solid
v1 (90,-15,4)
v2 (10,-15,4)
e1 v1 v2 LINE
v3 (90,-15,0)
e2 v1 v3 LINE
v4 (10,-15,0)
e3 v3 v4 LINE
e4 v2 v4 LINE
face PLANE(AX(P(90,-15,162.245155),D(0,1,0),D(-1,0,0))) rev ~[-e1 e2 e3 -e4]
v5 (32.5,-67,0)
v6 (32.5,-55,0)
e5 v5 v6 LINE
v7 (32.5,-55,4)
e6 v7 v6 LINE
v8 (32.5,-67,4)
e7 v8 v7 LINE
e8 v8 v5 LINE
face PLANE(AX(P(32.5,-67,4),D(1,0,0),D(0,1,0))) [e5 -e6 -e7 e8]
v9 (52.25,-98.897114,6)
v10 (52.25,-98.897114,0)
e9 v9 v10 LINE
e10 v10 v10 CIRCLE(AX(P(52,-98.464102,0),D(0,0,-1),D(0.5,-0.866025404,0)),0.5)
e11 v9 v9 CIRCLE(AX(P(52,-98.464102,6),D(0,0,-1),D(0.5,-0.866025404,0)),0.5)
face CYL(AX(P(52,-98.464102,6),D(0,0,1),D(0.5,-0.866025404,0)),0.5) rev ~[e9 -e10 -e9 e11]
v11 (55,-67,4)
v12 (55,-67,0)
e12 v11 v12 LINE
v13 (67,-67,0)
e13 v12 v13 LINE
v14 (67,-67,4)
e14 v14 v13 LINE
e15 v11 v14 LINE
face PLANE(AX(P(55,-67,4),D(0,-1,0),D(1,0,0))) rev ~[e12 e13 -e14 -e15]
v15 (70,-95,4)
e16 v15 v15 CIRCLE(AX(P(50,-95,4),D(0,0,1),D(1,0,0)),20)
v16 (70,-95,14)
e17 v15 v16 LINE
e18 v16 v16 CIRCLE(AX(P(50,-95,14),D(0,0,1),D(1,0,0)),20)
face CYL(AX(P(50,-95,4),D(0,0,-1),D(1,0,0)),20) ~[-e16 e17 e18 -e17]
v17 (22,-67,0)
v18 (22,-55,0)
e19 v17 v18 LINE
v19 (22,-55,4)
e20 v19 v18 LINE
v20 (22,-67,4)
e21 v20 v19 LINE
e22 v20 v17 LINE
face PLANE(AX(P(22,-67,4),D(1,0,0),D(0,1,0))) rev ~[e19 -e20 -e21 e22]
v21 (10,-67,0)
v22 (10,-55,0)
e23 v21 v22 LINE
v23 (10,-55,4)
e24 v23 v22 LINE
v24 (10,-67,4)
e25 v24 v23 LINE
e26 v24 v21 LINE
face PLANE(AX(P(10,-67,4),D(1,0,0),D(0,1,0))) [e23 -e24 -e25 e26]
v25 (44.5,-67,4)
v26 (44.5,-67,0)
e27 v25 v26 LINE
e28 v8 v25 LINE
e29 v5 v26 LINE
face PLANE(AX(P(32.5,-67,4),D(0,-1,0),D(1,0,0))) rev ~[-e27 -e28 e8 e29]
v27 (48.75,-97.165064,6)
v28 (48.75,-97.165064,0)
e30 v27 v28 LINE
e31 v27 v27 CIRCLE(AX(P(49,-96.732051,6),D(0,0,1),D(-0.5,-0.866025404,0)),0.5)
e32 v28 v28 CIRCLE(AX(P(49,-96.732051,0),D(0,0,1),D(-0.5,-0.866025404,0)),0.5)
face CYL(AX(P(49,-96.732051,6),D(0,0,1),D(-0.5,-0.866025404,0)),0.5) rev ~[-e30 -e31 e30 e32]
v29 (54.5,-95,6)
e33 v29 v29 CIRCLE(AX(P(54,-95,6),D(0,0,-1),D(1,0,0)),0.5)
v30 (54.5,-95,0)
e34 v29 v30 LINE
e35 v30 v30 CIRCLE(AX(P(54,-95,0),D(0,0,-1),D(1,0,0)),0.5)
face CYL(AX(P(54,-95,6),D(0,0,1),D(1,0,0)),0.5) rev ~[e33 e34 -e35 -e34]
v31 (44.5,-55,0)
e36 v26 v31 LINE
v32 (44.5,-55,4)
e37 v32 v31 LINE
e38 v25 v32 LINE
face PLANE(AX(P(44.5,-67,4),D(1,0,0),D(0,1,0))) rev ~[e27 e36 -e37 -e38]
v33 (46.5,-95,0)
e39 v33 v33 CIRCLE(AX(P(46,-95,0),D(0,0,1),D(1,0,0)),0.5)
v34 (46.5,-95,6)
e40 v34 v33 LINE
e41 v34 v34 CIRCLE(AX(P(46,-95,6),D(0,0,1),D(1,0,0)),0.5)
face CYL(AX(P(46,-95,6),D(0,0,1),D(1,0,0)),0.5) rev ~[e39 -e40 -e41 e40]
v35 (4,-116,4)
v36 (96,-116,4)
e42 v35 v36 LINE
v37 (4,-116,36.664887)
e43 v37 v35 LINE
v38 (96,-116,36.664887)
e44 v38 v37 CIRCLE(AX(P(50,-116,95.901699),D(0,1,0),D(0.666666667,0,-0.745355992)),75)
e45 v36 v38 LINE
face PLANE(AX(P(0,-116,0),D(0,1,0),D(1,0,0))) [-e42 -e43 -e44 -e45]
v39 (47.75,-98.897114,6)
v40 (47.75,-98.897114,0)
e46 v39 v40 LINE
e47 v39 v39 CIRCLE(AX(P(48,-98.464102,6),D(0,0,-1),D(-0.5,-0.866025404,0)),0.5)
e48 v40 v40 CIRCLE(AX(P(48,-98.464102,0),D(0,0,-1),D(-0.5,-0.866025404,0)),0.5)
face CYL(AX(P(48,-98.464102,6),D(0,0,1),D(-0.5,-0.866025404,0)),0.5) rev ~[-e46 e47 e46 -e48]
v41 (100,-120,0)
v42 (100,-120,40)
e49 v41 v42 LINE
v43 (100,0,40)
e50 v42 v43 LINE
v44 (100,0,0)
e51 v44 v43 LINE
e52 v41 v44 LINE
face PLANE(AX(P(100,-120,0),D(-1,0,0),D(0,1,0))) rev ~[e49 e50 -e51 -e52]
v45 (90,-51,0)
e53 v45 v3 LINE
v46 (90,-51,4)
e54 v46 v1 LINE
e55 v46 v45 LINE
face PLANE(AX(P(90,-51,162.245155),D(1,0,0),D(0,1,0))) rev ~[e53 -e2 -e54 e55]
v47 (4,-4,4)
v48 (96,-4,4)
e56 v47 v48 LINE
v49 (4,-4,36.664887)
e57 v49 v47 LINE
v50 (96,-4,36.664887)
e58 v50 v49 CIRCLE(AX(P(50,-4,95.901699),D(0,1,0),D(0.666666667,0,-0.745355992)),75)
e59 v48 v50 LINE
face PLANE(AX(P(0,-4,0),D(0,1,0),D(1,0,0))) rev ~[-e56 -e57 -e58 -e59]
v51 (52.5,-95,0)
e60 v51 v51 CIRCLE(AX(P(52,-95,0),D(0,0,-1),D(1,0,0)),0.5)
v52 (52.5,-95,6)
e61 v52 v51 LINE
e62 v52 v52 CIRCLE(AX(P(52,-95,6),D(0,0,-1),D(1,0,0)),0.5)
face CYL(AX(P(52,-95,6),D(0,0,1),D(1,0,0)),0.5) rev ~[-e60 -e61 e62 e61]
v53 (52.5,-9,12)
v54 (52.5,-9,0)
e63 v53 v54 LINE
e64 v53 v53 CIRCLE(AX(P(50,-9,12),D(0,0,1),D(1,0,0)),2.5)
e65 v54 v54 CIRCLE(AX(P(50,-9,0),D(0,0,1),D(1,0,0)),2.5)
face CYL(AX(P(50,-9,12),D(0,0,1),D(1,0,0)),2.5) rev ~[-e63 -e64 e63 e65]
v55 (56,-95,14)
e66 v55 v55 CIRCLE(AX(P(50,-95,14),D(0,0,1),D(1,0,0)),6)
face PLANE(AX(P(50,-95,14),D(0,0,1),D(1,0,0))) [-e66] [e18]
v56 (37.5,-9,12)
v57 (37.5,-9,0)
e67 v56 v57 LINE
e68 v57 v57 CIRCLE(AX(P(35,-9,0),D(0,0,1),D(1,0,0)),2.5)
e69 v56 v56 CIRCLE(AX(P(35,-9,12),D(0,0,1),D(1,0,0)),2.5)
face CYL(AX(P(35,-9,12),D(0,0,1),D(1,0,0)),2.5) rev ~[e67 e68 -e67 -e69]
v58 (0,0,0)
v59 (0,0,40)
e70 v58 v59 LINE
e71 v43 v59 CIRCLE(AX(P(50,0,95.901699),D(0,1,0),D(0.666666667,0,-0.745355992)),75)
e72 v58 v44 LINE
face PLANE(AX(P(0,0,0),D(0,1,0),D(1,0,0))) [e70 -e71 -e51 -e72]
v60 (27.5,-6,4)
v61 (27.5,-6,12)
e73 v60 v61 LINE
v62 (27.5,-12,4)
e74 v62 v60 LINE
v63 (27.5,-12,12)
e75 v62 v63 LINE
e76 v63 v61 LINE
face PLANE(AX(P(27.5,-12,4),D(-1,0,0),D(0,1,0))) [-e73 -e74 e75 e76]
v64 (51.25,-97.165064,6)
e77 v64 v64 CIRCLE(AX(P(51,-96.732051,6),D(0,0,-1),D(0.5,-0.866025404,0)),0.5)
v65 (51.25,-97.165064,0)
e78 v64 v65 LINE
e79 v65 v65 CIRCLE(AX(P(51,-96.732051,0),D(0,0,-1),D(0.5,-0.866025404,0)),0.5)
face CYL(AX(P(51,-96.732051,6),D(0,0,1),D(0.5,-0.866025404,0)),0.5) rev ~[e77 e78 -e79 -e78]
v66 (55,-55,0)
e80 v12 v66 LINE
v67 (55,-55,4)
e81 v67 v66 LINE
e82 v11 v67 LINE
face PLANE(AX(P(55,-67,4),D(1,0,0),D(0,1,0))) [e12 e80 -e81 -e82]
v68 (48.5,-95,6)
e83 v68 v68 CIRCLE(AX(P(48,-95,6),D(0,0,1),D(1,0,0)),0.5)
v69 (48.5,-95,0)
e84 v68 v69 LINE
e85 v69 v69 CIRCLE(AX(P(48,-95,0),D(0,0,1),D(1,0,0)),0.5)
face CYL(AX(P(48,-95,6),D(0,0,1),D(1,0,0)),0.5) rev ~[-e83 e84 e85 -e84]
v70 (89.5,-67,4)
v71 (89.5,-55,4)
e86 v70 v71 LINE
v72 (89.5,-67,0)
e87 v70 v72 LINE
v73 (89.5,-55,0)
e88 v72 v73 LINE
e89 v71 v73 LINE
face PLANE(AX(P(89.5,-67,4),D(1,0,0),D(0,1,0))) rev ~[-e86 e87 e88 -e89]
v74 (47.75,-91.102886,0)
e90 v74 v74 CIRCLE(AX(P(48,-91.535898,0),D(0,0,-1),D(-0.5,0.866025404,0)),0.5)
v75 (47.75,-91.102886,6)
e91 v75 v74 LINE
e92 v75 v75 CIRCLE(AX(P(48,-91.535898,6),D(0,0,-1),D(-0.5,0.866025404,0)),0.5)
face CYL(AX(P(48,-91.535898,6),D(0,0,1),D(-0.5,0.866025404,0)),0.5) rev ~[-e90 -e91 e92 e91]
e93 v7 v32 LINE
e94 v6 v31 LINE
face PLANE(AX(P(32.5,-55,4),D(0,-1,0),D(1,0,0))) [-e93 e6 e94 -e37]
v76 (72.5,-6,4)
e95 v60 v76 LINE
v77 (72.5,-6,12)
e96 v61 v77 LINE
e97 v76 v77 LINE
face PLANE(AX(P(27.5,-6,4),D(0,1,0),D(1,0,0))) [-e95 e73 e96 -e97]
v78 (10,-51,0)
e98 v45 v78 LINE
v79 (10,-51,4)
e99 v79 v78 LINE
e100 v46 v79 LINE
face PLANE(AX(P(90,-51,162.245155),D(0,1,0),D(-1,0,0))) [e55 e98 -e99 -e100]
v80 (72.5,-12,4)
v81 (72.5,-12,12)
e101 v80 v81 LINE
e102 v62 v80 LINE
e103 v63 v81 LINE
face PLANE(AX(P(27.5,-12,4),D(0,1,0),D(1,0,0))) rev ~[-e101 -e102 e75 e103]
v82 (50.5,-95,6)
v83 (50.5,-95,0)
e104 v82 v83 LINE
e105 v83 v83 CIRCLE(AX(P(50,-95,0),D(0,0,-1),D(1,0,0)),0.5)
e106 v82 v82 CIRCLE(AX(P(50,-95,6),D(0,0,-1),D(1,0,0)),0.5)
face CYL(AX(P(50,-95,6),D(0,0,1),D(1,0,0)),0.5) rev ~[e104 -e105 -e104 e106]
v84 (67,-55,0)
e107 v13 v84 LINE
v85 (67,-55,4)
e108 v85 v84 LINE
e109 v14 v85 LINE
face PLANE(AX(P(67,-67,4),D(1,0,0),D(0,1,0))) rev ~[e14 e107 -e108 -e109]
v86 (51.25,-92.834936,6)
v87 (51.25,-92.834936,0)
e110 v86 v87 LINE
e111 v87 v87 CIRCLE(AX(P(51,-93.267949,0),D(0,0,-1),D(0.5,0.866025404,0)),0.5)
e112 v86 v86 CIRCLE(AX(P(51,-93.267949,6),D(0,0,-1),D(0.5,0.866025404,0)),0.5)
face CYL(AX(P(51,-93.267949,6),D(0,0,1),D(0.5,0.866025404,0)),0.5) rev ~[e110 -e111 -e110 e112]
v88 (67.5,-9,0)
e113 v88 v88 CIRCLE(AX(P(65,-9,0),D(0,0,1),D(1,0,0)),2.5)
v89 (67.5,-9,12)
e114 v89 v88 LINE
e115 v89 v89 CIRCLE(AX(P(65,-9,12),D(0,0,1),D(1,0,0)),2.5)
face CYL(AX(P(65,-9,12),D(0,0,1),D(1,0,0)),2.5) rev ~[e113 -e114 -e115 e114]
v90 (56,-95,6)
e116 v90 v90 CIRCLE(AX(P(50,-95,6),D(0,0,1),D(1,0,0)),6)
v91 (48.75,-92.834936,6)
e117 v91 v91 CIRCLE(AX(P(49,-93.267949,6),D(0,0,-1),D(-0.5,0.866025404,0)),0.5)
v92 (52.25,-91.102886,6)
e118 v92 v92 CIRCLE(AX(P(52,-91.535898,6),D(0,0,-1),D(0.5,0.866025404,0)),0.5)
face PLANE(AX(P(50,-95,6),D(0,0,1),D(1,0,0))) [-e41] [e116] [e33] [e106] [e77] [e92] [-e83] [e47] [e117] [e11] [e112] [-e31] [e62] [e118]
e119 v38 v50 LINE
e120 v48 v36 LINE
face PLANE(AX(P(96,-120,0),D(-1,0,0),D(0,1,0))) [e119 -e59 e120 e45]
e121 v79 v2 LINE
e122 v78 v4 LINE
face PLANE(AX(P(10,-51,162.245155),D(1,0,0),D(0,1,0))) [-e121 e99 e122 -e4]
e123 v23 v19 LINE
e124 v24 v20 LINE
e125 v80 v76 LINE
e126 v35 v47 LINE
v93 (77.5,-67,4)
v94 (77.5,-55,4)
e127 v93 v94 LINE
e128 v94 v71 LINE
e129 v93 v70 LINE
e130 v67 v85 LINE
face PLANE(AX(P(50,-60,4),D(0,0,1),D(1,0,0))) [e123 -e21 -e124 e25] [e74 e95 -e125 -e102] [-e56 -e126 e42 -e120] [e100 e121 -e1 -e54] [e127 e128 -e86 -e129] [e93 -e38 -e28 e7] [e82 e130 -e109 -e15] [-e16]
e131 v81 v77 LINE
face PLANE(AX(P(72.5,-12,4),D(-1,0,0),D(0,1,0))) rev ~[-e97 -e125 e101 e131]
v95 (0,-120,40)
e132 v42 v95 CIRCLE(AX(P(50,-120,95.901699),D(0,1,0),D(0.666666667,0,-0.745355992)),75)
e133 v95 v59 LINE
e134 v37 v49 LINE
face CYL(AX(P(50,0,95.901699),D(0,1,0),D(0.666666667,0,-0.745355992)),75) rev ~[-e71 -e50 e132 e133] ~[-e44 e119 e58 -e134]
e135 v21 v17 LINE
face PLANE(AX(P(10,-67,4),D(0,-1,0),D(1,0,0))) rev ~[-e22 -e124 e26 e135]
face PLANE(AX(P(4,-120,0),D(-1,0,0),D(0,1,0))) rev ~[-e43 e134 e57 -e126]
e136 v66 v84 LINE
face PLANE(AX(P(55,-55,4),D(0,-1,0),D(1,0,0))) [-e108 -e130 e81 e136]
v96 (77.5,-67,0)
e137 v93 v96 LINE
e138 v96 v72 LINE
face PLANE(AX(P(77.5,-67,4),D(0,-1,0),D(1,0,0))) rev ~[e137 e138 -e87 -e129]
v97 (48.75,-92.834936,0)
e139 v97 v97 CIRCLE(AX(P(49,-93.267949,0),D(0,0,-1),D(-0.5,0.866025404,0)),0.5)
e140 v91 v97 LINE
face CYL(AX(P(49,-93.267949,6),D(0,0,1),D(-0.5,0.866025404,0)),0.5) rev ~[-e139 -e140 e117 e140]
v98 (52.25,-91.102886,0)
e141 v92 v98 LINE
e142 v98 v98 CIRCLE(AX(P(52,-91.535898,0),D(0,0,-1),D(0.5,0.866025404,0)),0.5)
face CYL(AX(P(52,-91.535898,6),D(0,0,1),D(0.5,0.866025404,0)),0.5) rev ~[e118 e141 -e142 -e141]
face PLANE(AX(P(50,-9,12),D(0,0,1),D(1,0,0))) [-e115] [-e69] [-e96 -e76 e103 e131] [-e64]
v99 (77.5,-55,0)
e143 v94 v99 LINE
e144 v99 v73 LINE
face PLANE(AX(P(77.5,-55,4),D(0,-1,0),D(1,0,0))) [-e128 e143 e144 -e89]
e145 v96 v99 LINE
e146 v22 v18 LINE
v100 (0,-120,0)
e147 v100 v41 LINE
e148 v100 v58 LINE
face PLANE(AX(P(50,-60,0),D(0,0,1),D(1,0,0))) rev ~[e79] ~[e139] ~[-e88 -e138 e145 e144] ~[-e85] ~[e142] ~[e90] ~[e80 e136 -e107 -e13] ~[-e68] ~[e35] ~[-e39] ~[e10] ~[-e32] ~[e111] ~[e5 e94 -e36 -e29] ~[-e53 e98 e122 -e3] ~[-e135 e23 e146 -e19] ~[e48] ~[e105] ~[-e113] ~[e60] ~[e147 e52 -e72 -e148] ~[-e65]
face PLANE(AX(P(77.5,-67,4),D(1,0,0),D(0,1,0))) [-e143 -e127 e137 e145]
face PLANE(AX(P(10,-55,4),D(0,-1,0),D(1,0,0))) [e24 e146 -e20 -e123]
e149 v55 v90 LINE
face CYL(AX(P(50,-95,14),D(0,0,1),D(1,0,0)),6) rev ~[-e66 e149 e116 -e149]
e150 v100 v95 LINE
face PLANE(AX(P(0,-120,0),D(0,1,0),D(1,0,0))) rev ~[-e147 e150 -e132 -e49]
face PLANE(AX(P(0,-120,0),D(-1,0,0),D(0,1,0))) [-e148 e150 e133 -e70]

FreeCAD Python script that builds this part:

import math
import FreeCAD as App
import Part
import Sketcher


def faces_at(feature, points):
    """Names of the faces that lie closest to the given points."""
    faces = feature.Shape.Faces
    near = lambda p: min(range(len(faces)), key=lambda i: faces[i].distToShape(Part.Vertex(*p))[0])
    return sorted({f"Face{near(p) + 1}" for p in points})


def add_polygon(sketch, points):
    """Adds a closed chain of lines whose ends are joined by coincident constraints."""
    first, n = sketch.GeometryCount, len(points)
    for a, b in zip(points, points[1:] + points[:1]):
        sketch.addGeometry(Part.LineSegment(App.Vector(*a, 0), App.Vector(*b, 0)), False)
    for i in range(n):
        sketch.addConstraint(Sketcher.Constraint("Coincident", first + i, 2, first + (i + 1) % n, 1))

doc = App.newDocument("Part")
body = doc.addObject("PartDesign::Body", "Body")

# Sketch on XY plane
sketch1 = body.newObject("Sketcher::SketchObject", "Sketch")
sketch1.AttachmentSupport = (doc.getObject("XY_Plane"), [""])
sketch1.MapMode = "FlatFace"
add_polygon(sketch1, [(0, 0), (0, -120), (100, -120), (100, 0)])  # lines 0-3
sketch1.addConstraint([
    Sketcher.Constraint("Vertical", 0),
    Sketcher.Constraint("Horizontal", 1),
    Sketcher.Constraint("Vertical", 2),
    Sketcher.Constraint("Horizontal", 3),
    Sketcher.Constraint("Coincident", 3, 2, -1, 1),
    Sketcher.Constraint("DistanceX", 1, 1, 1, 2, 100.0),
    Sketcher.Constraint("DistanceY", 0, 2, 0, 1, 120.0),
])
pad1 = body.newObject("PartDesign::Pad", "Pad")
pad1.Profile = sketch1
pad1.Length = 40

# Sketch on XZ plane
sketch2 = body.newObject("Sketcher::SketchObject", "Sketch001")
sketch2.AttachmentSupport = (doc.getObject("XZ_Plane"), [""])
sketch2.MapMode = "FlatFace"
sketch2.addGeometry([
    Part.LineSegment(App.Vector(0, 40, 0), App.Vector(100, 40, 0)),
    Part.ArcOfCircle(Part.Circle(App.Vector(50, 96, 0), App.Vector(0, 0, 1), 75), math.radians(-132), math.radians(-48)),
], False)
sketch2.addConstraint([
    Sketcher.Constraint("Coincident", 0, 1, 1, 1),
    Sketcher.Constraint("Coincident", 1, 2, 0, 2),
    Sketcher.Constraint("Horizontal", 0),
    Sketcher.Constraint("PointOnObject", 0, 1, -2),
    Sketcher.Constraint("Radius", 1, 75.0),
    Sketcher.Constraint("DistanceX", 0, 1, 0, 2, 100.0),
    Sketcher.Constraint("DistanceY", -1, 1, 0, 1, 40.0),
])
pocket1 = body.newObject("PartDesign::Pocket", "Pocket")
pocket1.Profile = sketch2
pocket1.Length = 120
pocket1.Reversed = True
doc.recompute()

thickness = body.newObject("PartDesign::Thickness", "Thickness")
thickness.Base = (pocket1, faces_at(pocket1, [(50, -60, 20.902)]))
thickness.Value = 4
thickness.Reversed = True
thickness.Join = "Intersection"

# Sketch on XY plane
sketch3 = body.newObject("Sketcher::SketchObject", "Sketch002")
sketch3.AttachmentSupport = (doc.getObject("XY_Plane"), [""])
sketch3.MapMode = "FlatFace"
add_polygon(sketch3, [(90, -15), (90, -51), (10, -51), (10, -15)])  # lines 0-3
sketch3.addConstraint([
    Sketcher.Constraint("Vertical", 0),
    Sketcher.Constraint("Horizontal", 1),
    Sketcher.Constraint("Vertical", 2),
    Sketcher.Constraint("Horizontal", 3),
    Sketcher.Constraint("DistanceX", 1, 2, 1, 1, 80.0),
    Sketcher.Constraint("DistanceY", 0, 2, 0, 1, 36.0),
    Sketcher.Constraint("DistanceX", -1, 1, 0, 2, 90.0),
    Sketcher.Constraint("DistanceY", 0, 2, -1, 1, 51.0),
])
pocket2 = body.newObject("PartDesign::Pocket", "Pocket001")
pocket2.Profile = sketch3
pocket2.Type = "ThroughAll"
pocket2.Midplane = True

# Sketch on XY plane
sketch4 = body.newObject("Sketcher::SketchObject", "Sketch003")
sketch4.AttachmentSupport = (doc.getObject("XY_Plane"), [""])
sketch4.MapMode = "FlatFace"
sketch4.AttachmentOffset = App.Placement(App.Vector(0, 0, 4), App.Rotation())
sketch4.addGeometry(Part.Circle(App.Vector(50, -95, 0), App.Vector(0, 0, 1), 20), False)
sketch4.addConstraint([
    Sketcher.Constraint("Diameter", 0, 40.0),
    Sketcher.Constraint("DistanceX", -1, 1, 0, 3, 50.0),
    Sketcher.Constraint("DistanceY", 0, 3, -1, 1, 95.0),
])
pad2 = body.newObject("PartDesign::Pad", "Pad001")
pad2.Profile = sketch4
pad2.Length = 10

# Sketch on XY plane
sketch5 = body.newObject("Sketcher::SketchObject", "Sketch004")
sketch5.AttachmentSupport = (doc.getObject("XY_Plane"), [""])
sketch5.MapMode = "FlatFace"
sketch5.AttachmentOffset = App.Placement(App.Vector(0, 0, 4), App.Rotation())
add_polygon(sketch5, [(28, -6), (28, -12), (72, -12), (72, -6)])  # lines 0-3
sketch5.addConstraint([
    Sketcher.Constraint("Vertical", 0),
    Sketcher.Constraint("Horizontal", 1),
    Sketcher.Constraint("Vertical", 2),
    Sketcher.Constraint("Horizontal", 3),
    Sketcher.Constraint("DistanceX", 1, 1, 1, 2, 45.0),
    Sketcher.Constraint("DistanceY", 0, 2, 0, 1, 6.0),
    Sketcher.Constraint("DistanceY", 0, 2, -1, 1, 12.0),
    Sketcher.Constraint("DistanceX", -1, 1, 0, 2, 27.5),
])
pad3 = body.newObject("PartDesign::Pad", "Pad002")
pad3.Profile = sketch5
pad3.Length = 8

# Sketch on XY plane
sketch6 = body.newObject("Sketcher::SketchObject", "Sketch005")
sketch6.AttachmentSupport = (doc.getObject("XY_Plane"), [""])
sketch6.MapMode = "FlatFace"
sketch6.AttachmentOffset = App.Placement(App.Vector(0, 0, 12), App.Rotation())
sketch6.addGeometry(Part.Circle(App.Vector(50, -9, 0), App.Vector(0, 0, 1), 2.5), False)
sketch6.addConstraint([
    Sketcher.Constraint("Diameter", 0, 5.0),
    Sketcher.Constraint("DistanceX", -1, 1, 0, 3, 50.0),
    Sketcher.Constraint("DistanceY", 0, 3, -1, 1, 9.0),
])
pocket3 = body.newObject("PartDesign::Pocket", "Pocket002")
pocket3.Profile = sketch6
pocket3.Type = "ThroughAll"
doc.recompute()

linearpattern = body.newObject("PartDesign::LinearPattern", "LinearPattern")
linearpattern.Originals = [pocket3]
linearpattern.Direction = (doc.getObject("X_Axis"), [""])
linearpattern.Mode = "offset"
linearpattern.Offset = 15
linearpattern.Occurrences = 2
linearpattern.Reversed = True
body.Tip = linearpattern
doc.recompute()

linearpattern2 = body.newObject("PartDesign::LinearPattern", "LinearPattern001")
linearpattern2.Originals = [pocket3]
linearpattern2.Direction = (doc.getObject("X_Axis"), [""])
linearpattern2.Mode = "offset"
linearpattern2.Offset = 15
linearpattern2.Occurrences = 2
body.Tip = linearpattern2

# Sketch on XY plane
sketch7 = body.newObject("Sketcher::SketchObject", "Sketch006")
sketch7.AttachmentSupport = (doc.getObject("XY_Plane"), [""])
sketch7.MapMode = "FlatFace"
sketch7.AttachmentOffset = App.Placement(App.Vector(0, 0, 4), App.Rotation())
add_polygon(sketch7, [(10, -55), (10, -67), (22, -67), (22, -55)])  # lines 0-3
sketch7.addConstraint([
    Sketcher.Constraint("Vertical", 0),
    Sketcher.Constraint("Horizontal", 1),
    Sketcher.Constraint("Vertical", 2),
    Sketcher.Constraint("Horizontal", 3),
    Sketcher.Constraint("Equal", 3, 0),
    Sketcher.Constraint("DistanceX", 1, 1, 1, 2, 12.0),
    Sketcher.Constraint("DistanceX", -1, 1, 0, 2, 10.0),
    Sketcher.Constraint("DistanceY", 0, 2, -1, 1, 67.0),
])
pocket4 = body.newObject("PartDesign::Pocket", "Pocket003")
pocket4.Profile = sketch7
pocket4.Length = 10
doc.recompute()

linearpattern3 = body.newObject("PartDesign::LinearPattern", "LinearPattern002")
linearpattern3.Originals = [pocket4]
linearpattern3.Direction = (doc.getObject("X_Axis"), [""])
linearpattern3.Mode = "offset"
linearpattern3.Offset = 22.5
linearpattern3.Occurrences = 4
body.Tip = linearpattern3

# Sketch on XY plane
sketch8 = body.newObject("Sketcher::SketchObject", "Sketch007")
sketch8.AttachmentSupport = (doc.getObject("XY_Plane"), [""])
sketch8.MapMode = "FlatFace"
sketch8.AttachmentOffset = App.Placement(App.Vector(0, 0, 14), App.Rotation())
sketch8.addGeometry(Part.Circle(App.Vector(50, -95, 0), App.Vector(0, 0, 1), 6), False)
sketch8.addConstraint([
    Sketcher.Constraint("Diameter", 0, 12.0),
    Sketcher.Constraint("DistanceX", -1, 1, 0, 3, 50.0),
    Sketcher.Constraint("DistanceY", 0, 3, -1, 1, 95.0),
])
pocket5 = body.newObject("PartDesign::Pocket", "Pocket004")
pocket5.Profile = sketch8
pocket5.Length = 8

# Sketch on XY plane
sketch9 = body.newObject("Sketcher::SketchObject", "Sketch008")
sketch9.AttachmentSupport = (doc.getObject("XY_Plane"), [""])
sketch9.MapMode = "FlatFace"
sketch9.AttachmentOffset = App.Placement(App.Vector(0, 0, 6), App.Rotation())
sketch9.addGeometry(Part.Circle(App.Vector(50, -95, 0), App.Vector(0, 0, 1), 0.5), False)
sketch9.addConstraint([
    Sketcher.Constraint("Diameter", 0, 1.0),
    Sketcher.Constraint("DistanceX", -1, 1, 0, 3, 50.0),
    Sketcher.Constraint("DistanceY", 0, 3, -1, 1, 95.0),
])
pocket6 = body.newObject("PartDesign::Pocket", "Pocket005")
pocket6.Profile = sketch9
pocket6.Length = 10
doc.recompute()

linearpattern4 = body.newObject("PartDesign::LinearPattern", "LinearPattern003")
linearpattern4.Originals = [pocket6]
linearpattern4.Direction = (doc.getObject("X_Axis"), [""])
linearpattern4.Mode = "offset"
linearpattern4.Offset = 2
linearpattern4.Occurrences = 3
body.Tip = linearpattern4
doc.recompute()

linearpattern5 = body.newObject("PartDesign::LinearPattern", "LinearPattern004")
linearpattern5.Originals = [pocket6]
linearpattern5.Direction = (doc.getObject("X_Axis"), [""])
linearpattern5.Mode = "offset"
linearpattern5.Offset = 2
linearpattern5.Occurrences = 3
linearpattern5.Reversed = True
body.Tip = linearpattern5

# Sketch on XY plane
sketch10 = body.newObject("Sketcher::SketchObject", "Sketch009")
sketch10.AttachmentSupport = (doc.getObject("XY_Plane"), [""])
sketch10.MapMode = "FlatFace"
sketch10.AttachmentOffset = App.Placement(App.Vector(0, 0, 6), App.Rotation())
sketch10.addGeometry(Part.Circle(App.Vector(51, -93.3, 0), App.Vector(0, 0, 1), 0.5), False)
sketch10.addConstraint([
    Sketcher.Constraint("Diameter", 0, 1.0),
    Sketcher.Constraint("DistanceX", -1, 1, 0, 3, 51.0),
    Sketcher.Constraint("DistanceY", 0, 3, -1, 1, 93.267949),
])
pocket7 = body.newObject("PartDesign::Pocket", "Pocket006")
pocket7.Profile = sketch10
pocket7.Length = 10

# Sketch on XY plane
sketch11 = body.newObject("Sketcher::SketchObject", "Sketch010")
sketch11.AttachmentSupport = (doc.getObject("XY_Plane"), [""])
sketch11.MapMode = "FlatFace"
sketch11.AttachmentOffset = App.Placement(App.Vector(0, 0, 6), App.Rotation())
sketch11.addGeometry(Part.Circle(App.Vector(49, -93.3, 0), App.Vector(0, 0, 1), 0.5), False)
sketch11.addConstraint([
    Sketcher.Constraint("Diameter", 0, 1.0),
    Sketcher.Constraint("DistanceX", -1, 1, 0, 3, 49.0),
    Sketcher.Constraint("DistanceY", 0, 3, -1, 1, 93.267949),
])
pocket8 = body.newObject("PartDesign::Pocket", "Pocket007")
pocket8.Profile = sketch11
pocket8.Length = 10

# Sketch on XY plane
sketch12 = body.newObject("Sketcher::SketchObject", "Sketch011")
sketch12.AttachmentSupport = (doc.getObject("XY_Plane"), [""])
sketch12.MapMode = "FlatFace"
sketch12.AttachmentOffset = App.Placement(App.Vector(0, 0, 6), App.Rotation())
sketch12.addGeometry(Part.Circle(App.Vector(48, -95, 0), App.Vector(0, 0, 1), 0.5), False)
sketch12.addConstraint([
    Sketcher.Constraint("Diameter", 0, 1.0),
    Sketcher.Constraint("DistanceX", -1, 1, 0, 3, 48.0),
    Sketcher.Constraint("DistanceY", 0, 3, -1, 1, 95.0),
])
pocket9 = body.newObject("PartDesign::Pocket", "Pocket008")
pocket9.Profile = sketch12
pocket9.Length = 10

# Sketch on XY plane
sketch13 = body.newObject("Sketcher::SketchObject", "Sketch012")
sketch13.AttachmentSupport = (doc.getObject("XY_Plane"), [""])
sketch13.MapMode = "FlatFace"
sketch13.AttachmentOffset = App.Placement(App.Vector(0, 0, 6), App.Rotation())
sketch13.addGeometry(Part.Circle(App.Vector(49, -96.7, 0), App.Vector(0, 0, 1), 0.5), False)
sketch13.addConstraint([
    Sketcher.Constraint("Diameter", 0, 1.0),
    Sketcher.Constraint("DistanceX", -1, 1, 0, 3, 49.0),
    Sketcher.Constraint("DistanceY", 0, 3, -1, 1, 96.732051),
])
pocket10 = body.newObject("PartDesign::Pocket", "Pocket009")
pocket10.Profile = sketch13
pocket10.Length = 10

# Sketch on XY plane
sketch14 = body.newObject("Sketcher::SketchObject", "Sketch013")
sketch14.AttachmentSupport = (doc.getObject("XY_Plane"), [""])
sketch14.MapMode = "FlatFace"
sketch14.AttachmentOffset = App.Placement(App.Vector(0, 0, 6), App.Rotation())
sketch14.addGeometry(Part.Circle(App.Vector(51, -96.7, 0), App.Vector(0, 0, 1), 0.5), False)
sketch14.addConstraint([
    Sketcher.Constraint("Diameter", 0, 1.0),
    Sketcher.Constraint("DistanceX", -1, 1, 0, 3, 51.0),
    Sketcher.Constraint("DistanceY", 0, 3, -1, 1, 96.732051),
])
pocket11 = body.newObject("PartDesign::Pocket", "Pocket010")
pocket11.Profile = sketch14
pocket11.Length = 10

# Sketch on XY plane
sketch15 = body.newObject("Sketcher::SketchObject", "Sketch014")
sketch15.AttachmentSupport = (doc.getObject("XY_Plane"), [""])
sketch15.MapMode = "FlatFace"
sketch15.AttachmentOffset = App.Placement(App.Vector(0, 0, 6), App.Rotation())
sketch15.addGeometry(Part.Circle(App.Vector(52, -91.5, 0), App.Vector(0, 0, 1), 0.5), False)
sketch15.addConstraint([
    Sketcher.Constraint("Diameter", 0, 1.0),
    Sketcher.Constraint("DistanceX", -1, 1, 0, 3, 52.0),
    Sketcher.Constraint("DistanceY", 0, 3, -1, 1, 91.535898),
])
pocket12 = body.newObject("PartDesign::Pocket", "Pocket011")
pocket12.Profile = sketch15
pocket12.Length = 10

# Sketch on XY plane
sketch16 = body.newObject("Sketcher::SketchObject", "Sketch015")
sketch16.AttachmentSupport = (doc.getObject("XY_Plane"), [""])
sketch16.MapMode = "FlatFace"
sketch16.AttachmentOffset = App.Placement(App.Vector(0, 0, 6), App.Rotation())
sketch16.addGeometry(Part.Circle(App.Vector(48, -91.5, 0), App.Vector(0, 0, 1), 0.5), False)
sketch16.addConstraint([
    Sketcher.Constraint("Diameter", 0, 1.0),
    Sketcher.Constraint("DistanceX", -1, 1, 0, 3, 48.0),
    Sketcher.Constraint("DistanceY", 0, 3, -1, 1, 91.535898),
])
pocket13 = body.newObject("PartDesign::Pocket", "Pocket012")
pocket13.Profile = sketch16
pocket13.Length = 10

# Sketch on XY plane
sketch17 = body.newObject("Sketcher::SketchObject", "Sketch016")
sketch17.AttachmentSupport = (doc.getObject("XY_Plane"), [""])
sketch17.MapMode = "FlatFace"
sketch17.AttachmentOffset = App.Placement(App.Vector(0, 0, 6), App.Rotation())
sketch17.addGeometry(Part.Circle(App.Vector(46, -95, 0), App.Vector(0, 0, 1), 0.5), False)
sketch17.addConstraint([
    Sketcher.Constraint("Diameter", 0, 1.0),
    Sketcher.Constraint("DistanceX", -1, 1, 0, 3, 46.0),
    Sketcher.Constraint("DistanceY", 0, 3, -1, 1, 95.0),
])
pocket14 = body.newObject("PartDesign::Pocket", "Pocket013")
pocket14.Profile = sketch17
pocket14.Length = 10

# Sketch on XY plane
sketch18 = body.newObject("Sketcher::SketchObject", "Sketch017")
sketch18.AttachmentSupport = (doc.getObject("XY_Plane"), [""])
sketch18.MapMode = "FlatFace"
sketch18.AttachmentOffset = App.Placement(App.Vector(0, 0, 6), App.Rotation())
sketch18.addGeometry(Part.Circle(App.Vector(48, -98.5, 0), App.Vector(0, 0, 1), 0.5), False)
sketch18.addConstraint([
    Sketcher.Constraint("Diameter", 0, 1.0),
    Sketcher.Constraint("DistanceX", -1, 1, 0, 3, 48.0),
    Sketcher.Constraint("DistanceY", 0, 3, -1, 1, 98.464102),
])
pocket15 = body.newObject("PartDesign::Pocket", "Pocket014")
pocket15.Profile = sketch18
pocket15.Length = 10

# Sketch on XY plane
sketch19 = body.newObject("Sketcher::SketchObject", "Sketch018")
sketch19.AttachmentSupport = (doc.getObject("XY_Plane"), [""])
sketch19.MapMode = "FlatFace"
sketch19.AttachmentOffset = App.Placement(App.Vector(0, 0, 6), App.Rotation())
sketch19.addGeometry(Part.Circle(App.Vector(52, -98.5, 0), App.Vector(0, 0, 1), 0.5), False)
sketch19.addConstraint([
    Sketcher.Constraint("Diameter", 0, 1.0),
    Sketcher.Constraint("DistanceX", -1, 1, 0, 3, 52.0),
    Sketcher.Constraint("DistanceY", 0, 3, -1, 1, 98.464102),
])
pocket16 = body.newObject("PartDesign::Pocket", "Pocket015")
pocket16.Profile = sketch19
pocket16.Length = 10

# Sketch on XY plane
sketch20 = body.newObject("Sketcher::SketchObject", "Sketch019")
sketch20.AttachmentSupport = (doc.getObject("XY_Plane"), [""])
sketch20.MapMode = "FlatFace"
sketch20.AttachmentOffset = App.Placement(App.Vector(0, 0, 6), App.Rotation())
sketch20.addGeometry(Part.Circle(App.Vector(49, -96.7, 0), App.Vector(0, 0, 1), 0.5), False)
sketch20.addConstraint([
    Sketcher.Constraint("Diameter", 0, 1.0),
    Sketcher.Constraint("DistanceX", -1, 1, 0, 3, 49.0),
    Sketcher.Constraint("DistanceY", 0, 3, -1, 1, 96.732051),
])
pocket17 = body.newObject("PartDesign::Pocket", "Pocket016")
pocket17.Profile = sketch20
pocket17.Length = 10

# Sketch on XY plane
sketch21 = body.newObject("Sketcher::SketchObject", "Sketch020")
sketch21.AttachmentSupport = (doc.getObject("XY_Plane"), [""])
sketch21.MapMode = "FlatFace"
sketch21.AttachmentOffset = App.Placement(App.Vector(0, 0, 6), App.Rotation())
sketch21.addGeometry(Part.Circle(App.Vector(51, -96.7, 0), App.Vector(0, 0, 1), 0.5), False)
sketch21.addConstraint([
    Sketcher.Constraint("Diameter", 0, 1.0),
    Sketcher.Constraint("DistanceX", -1, 1, 0, 3, 51.0),
    Sketcher.Constraint("DistanceY", 0, 3, -1, 1, 96.732051),
])
pocket18 = body.newObject("PartDesign::Pocket", "Pocket017")
pocket18.Profile = sketch21
pocket18.Length = 10

# Sketch on XY plane
sketch22 = body.newObject("Sketcher::SketchObject", "Sketch021")
sketch22.AttachmentSupport = (doc.getObject("XY_Plane"), [""])
sketch22.MapMode = "FlatFace"
sketch22.AttachmentOffset = App.Placement(App.Vector(0, 0, 6), App.Rotation())
sketch22.addGeometry(Part.Circle(App.Vector(52, -95, 0), App.Vector(0, 0, 1), 0.5), False)
sketch22.addConstraint([
    Sketcher.Constraint("Diameter", 0, 1.0),
    Sketcher.Constraint("DistanceX", -1, 1, 0, 3, 52.0),
    Sketcher.Constraint("DistanceY", 0, 3, -1, 1, 95.0),
])
pocket19 = body.newObject("PartDesign::Pocket", "Pocket018")
pocket19.Profile = sketch22
pocket19.Length = 10

# Sketch on XY plane
sketch23 = body.newObject("Sketcher::SketchObject", "Sketch022")
sketch23.AttachmentSupport = (doc.getObject("XY_Plane"), [""])
sketch23.MapMode = "FlatFace"
sketch23.AttachmentOffset = App.Placement(App.Vector(0, 0, 6), App.Rotation())
sketch23.addGeometry(Part.Circle(App.Vector(51, -93.3, 0), App.Vector(0, 0, 1), 0.5), False)
sketch23.addConstraint([
    Sketcher.Constraint("Diameter", 0, 1.0),
    Sketcher.Constraint("DistanceX", -1, 1, 0, 3, 51.0),
    Sketcher.Constraint("DistanceY", 0, 3, -1, 1, 93.267949),
])
pocket20 = body.newObject("PartDesign::Pocket", "Pocket019")
pocket20.Profile = sketch23
pocket20.Length = 10

# Sketch on XY plane
sketch24 = body.newObject("Sketcher::SketchObject", "Sketch023")
sketch24.AttachmentSupport = (doc.getObject("XY_Plane"), [""])
sketch24.MapMode = "FlatFace"
sketch24.AttachmentOffset = App.Placement(App.Vector(0, 0, 6), App.Rotation())
sketch24.addGeometry(Part.Circle(App.Vector(49, -93.3, 0), App.Vector(0, 0, 1), 0.5), False)
sketch24.addConstraint([
    Sketcher.Constraint("Diameter", 0, 1.0),
    Sketcher.Constraint("DistanceX", -1, 1, 0, 3, 49.0),
    Sketcher.Constraint("DistanceY", 0, 3, -1, 1, 93.267949),
])
pocket21 = body.newObject("PartDesign::Pocket", "Pocket020")
pocket21.Profile = sketch24
pocket21.Length = 10

# Sketch on XY plane
sketch25 = body.newObject("Sketcher::SketchObject", "Sketch024")
sketch25.AttachmentSupport = (doc.getObject("XY_Plane"), [""])
sketch25.MapMode = "FlatFace"
sketch25.AttachmentOffset = App.Placement(App.Vector(0, 0, 6), App.Rotation())
sketch25.addGeometry(Part.Circle(App.Vector(48, -98.5, 0), App.Vector(0, 0, 1), 0.5), False)
sketch25.addConstraint([
    Sketcher.Constraint("Diameter", 0, 1.0),
    Sketcher.Constraint("DistanceX", -1, 1, 0, 3, 48.0),
    Sketcher.Constraint("DistanceY", 0, 3, -1, 1, 98.464102),
])
pocket22 = body.newObject("PartDesign::Pocket", "Pocket021")
pocket22.Profile = sketch25
pocket22.Length = 10

# Sketch on XY plane
sketch26 = body.newObject("Sketcher::SketchObject", "Sketch025")
sketch26.AttachmentSupport = (doc.getObject("XY_Plane"), [""])
sketch26.MapMode = "FlatFace"
sketch26.AttachmentOffset = App.Placement(App.Vector(0, 0, 6), App.Rotation())
sketch26.addGeometry(Part.Circle(App.Vector(52, -98.5, 0), App.Vector(0, 0, 1), 0.5), False)
sketch26.addConstraint([
    Sketcher.Constraint("Diameter", 0, 1.0),
    Sketcher.Constraint("DistanceX", -1, 1, 0, 3, 52.0),
    Sketcher.Constraint("DistanceY", 0, 3, -1, 1, 98.464102),
])
pocket23 = body.newObject("PartDesign::Pocket", "Pocket022")
pocket23.Profile = sketch26
pocket23.Length = 10

# Sketch on XY plane
sketch27 = body.newObject("Sketcher::SketchObject", "Sketch026")
sketch27.AttachmentSupport = (doc.getObject("XY_Plane"), [""])
sketch27.MapMode = "FlatFace"
sketch27.AttachmentOffset = App.Placement(App.Vector(0, 0, 6), App.Rotation())
sketch27.addGeometry(Part.Circle(App.Vector(54, -95, 0), App.Vector(0, 0, 1), 0.5), False)
sketch27.addConstraint([
    Sketcher.Constraint("Diameter", 0, 1.0),
    Sketcher.Constraint("DistanceX", -1, 1, 0, 3, 54.0),
    Sketcher.Constraint("DistanceY", 0, 3, -1, 1, 95.0),
])
pocket24 = body.newObject("PartDesign::Pocket", "Pocket023")
pocket24.Profile = sketch27
pocket24.Length = 10

# Sketch on XY plane
sketch28 = body.newObject("Sketcher::SketchObject", "Sketch027")
sketch28.AttachmentSupport = (doc.getObject("XY_Plane"), [""])
sketch28.MapMode = "FlatFace"
sketch28.AttachmentOffset = App.Placement(App.Vector(0, 0, 6), App.Rotation())
sketch28.addGeometry(Part.Circle(App.Vector(52, -91.5, 0), App.Vector(0, 0, 1), 0.5), False)
sketch28.addConstraint([
    Sketcher.Constraint("Diameter", 0, 1.0),
    Sketcher.Constraint("DistanceX", -1, 1, 0, 3, 52.0),
    Sketcher.Constraint("DistanceY", 0, 3, -1, 1, 91.535898),
])
pocket25 = body.newObject("PartDesign::Pocket", "Pocket024")
pocket25.Profile = sketch28
pocket25.Length = 10

# Sketch on XY plane
sketch29 = body.newObject("Sketcher::SketchObject", "Sketch028")
sketch29.AttachmentSupport = (doc.getObject("XY_Plane"), [""])
sketch29.MapMode = "FlatFace"
sketch29.AttachmentOffset = App.Placement(App.Vector(0, 0, 6), App.Rotation())
sketch29.addGeometry(Part.Circle(App.Vector(48, -91.5, 0), App.Vector(0, 0, 1), 0.5), False)
sketch29.addConstraint([
    Sketcher.Constraint("Diameter", 0, 1.0),
    Sketcher.Constraint("DistanceX", -1, 1, 0, 3, 48.0),
    Sketcher.Constraint("DistanceY", 0, 3, -1, 1, 91.535898),
])
pocket26 = body.newObject("PartDesign::Pocket", "Pocket025")
pocket26.Profile = sketch29
pocket26.Length = 10

# Sketch on XY plane
sketch30 = body.newObject("Sketcher::SketchObject", "Sketch029")
sketch30.AttachmentSupport = (doc.getObject("XY_Plane"), [""])
sketch30.MapMode = "FlatFace"
sketch30.AttachmentOffset = App.Placement(App.Vector(0, 0, 6), App.Rotation())
sketch30.addGeometry(Part.Circle(App.Vector(50, -95, 0), App.Vector(0, 0, 1), 0.5), False)
sketch30.addConstraint([
    Sketcher.Constraint("Diameter", 0, 1.0),
    Sketcher.Constraint("DistanceX", -1, 1, 0, 3, 50.0),
    Sketcher.Constraint("DistanceY", 0, 3, -1, 1, 95.0),
])
pocket27 = body.newObject("PartDesign::Pocket", "Pocket026")
pocket27.Profile = sketch30
pocket27.Length = 10

# Sketch on XY plane
sketch31 = body.newObject("Sketcher::SketchObject", "Sketch030")
sketch31.AttachmentSupport = (doc.getObject("XY_Plane"), [""])
sketch31.MapMode = "FlatFace"
sketch31.AttachmentOffset = App.Placement(App.Vector(0, 0, 6), App.Rotation())
sketch31.addGeometry(Part.Circle(App.Vector(50, -95, 0), App.Vector(0, 0, 1), 0.5), False)
sketch31.addConstraint([
    Sketcher.Constraint("Diameter", 0, 1.0),
    Sketcher.Constraint("DistanceX", -1, 1, 0, 3, 50.0),
    Sketcher.Constraint("DistanceY", 0, 3, -1, 1, 95.0),
])
pocket28 = body.newObject("PartDesign::Pocket", "Pocket027")
pocket28.Profile = sketch31
pocket28.Length = 10

# Sketch on XY plane
sketch32 = body.newObject("Sketcher::SketchObject", "Sketch031")
sketch32.AttachmentSupport = (doc.getObject("XY_Plane"), [""])
sketch32.MapMode = "FlatFace"
sketch32.AttachmentOffset = App.Placement(App.Vector(0, 0, 6), App.Rotation())
sketch32.addGeometry(Part.Circle(App.Vector(50, -95, 0), App.Vector(0, 0, 1), 0.5), False)
sketch32.addConstraint([
    Sketcher.Constraint("Diameter", 0, 1.0),
    Sketcher.Constraint("DistanceX", -1, 1, 0, 3, 50.0),
    Sketcher.Constraint("DistanceY", 0, 3, -1, 1, 95.0),
])
pocket29 = body.newObject("PartDesign::Pocket", "Pocket028")
pocket29.Profile = sketch32
pocket29.Length = 10

# Sketch on XY plane
sketch33 = body.newObject("Sketcher::SketchObject", "Sketch032")
sketch33.AttachmentSupport = (doc.getObject("XY_Plane"), [""])
sketch33.MapMode = "FlatFace"
sketch33.AttachmentOffset = App.Placement(App.Vector(0, 0, 6), App.Rotation())
sketch33.addGeometry(Part.Circle(App.Vector(50, -95, 0), App.Vector(0, 0, 1), 0.5), False)
sketch33.addConstraint([
    Sketcher.Constraint("Diameter", 0, 1.0),
    Sketcher.Constraint("DistanceX", -1, 1, 0, 3, 50.0),
    Sketcher.Constraint("DistanceY", 0, 3, -1, 1, 95.0),
])
pocket30 = body.newObject("PartDesign::Pocket", "Pocket029")
pocket30.Profile = sketch33
pocket30.Length = 10

# Sketch on XY plane
sketch34 = body.newObject("Sketcher::SketchObject", "Sketch033")
sketch34.AttachmentSupport = (doc.getObject("XY_Plane"), [""])
sketch34.MapMode = "FlatFace"
sketch34.AttachmentOffset = App.Placement(App.Vector(0, 0, 6), App.Rotation())
sketch34.addGeometry(Part.Circle(App.Vector(50, -95, 0), App.Vector(0, 0, 1), 0.5), False)
sketch34.addConstraint([
    Sketcher.Constraint("Diameter", 0, 1.0),
    Sketcher.Constraint("DistanceX", -1, 1, 0, 3, 50.0),
    Sketcher.Constraint("DistanceY", 0, 3, -1, 1, 95.0),
])
pocket31 = body.newObject("PartDesign::Pocket", "Pocket030")
pocket31.Profile = sketch34
pocket31.Length = 10

doc.recompute()
